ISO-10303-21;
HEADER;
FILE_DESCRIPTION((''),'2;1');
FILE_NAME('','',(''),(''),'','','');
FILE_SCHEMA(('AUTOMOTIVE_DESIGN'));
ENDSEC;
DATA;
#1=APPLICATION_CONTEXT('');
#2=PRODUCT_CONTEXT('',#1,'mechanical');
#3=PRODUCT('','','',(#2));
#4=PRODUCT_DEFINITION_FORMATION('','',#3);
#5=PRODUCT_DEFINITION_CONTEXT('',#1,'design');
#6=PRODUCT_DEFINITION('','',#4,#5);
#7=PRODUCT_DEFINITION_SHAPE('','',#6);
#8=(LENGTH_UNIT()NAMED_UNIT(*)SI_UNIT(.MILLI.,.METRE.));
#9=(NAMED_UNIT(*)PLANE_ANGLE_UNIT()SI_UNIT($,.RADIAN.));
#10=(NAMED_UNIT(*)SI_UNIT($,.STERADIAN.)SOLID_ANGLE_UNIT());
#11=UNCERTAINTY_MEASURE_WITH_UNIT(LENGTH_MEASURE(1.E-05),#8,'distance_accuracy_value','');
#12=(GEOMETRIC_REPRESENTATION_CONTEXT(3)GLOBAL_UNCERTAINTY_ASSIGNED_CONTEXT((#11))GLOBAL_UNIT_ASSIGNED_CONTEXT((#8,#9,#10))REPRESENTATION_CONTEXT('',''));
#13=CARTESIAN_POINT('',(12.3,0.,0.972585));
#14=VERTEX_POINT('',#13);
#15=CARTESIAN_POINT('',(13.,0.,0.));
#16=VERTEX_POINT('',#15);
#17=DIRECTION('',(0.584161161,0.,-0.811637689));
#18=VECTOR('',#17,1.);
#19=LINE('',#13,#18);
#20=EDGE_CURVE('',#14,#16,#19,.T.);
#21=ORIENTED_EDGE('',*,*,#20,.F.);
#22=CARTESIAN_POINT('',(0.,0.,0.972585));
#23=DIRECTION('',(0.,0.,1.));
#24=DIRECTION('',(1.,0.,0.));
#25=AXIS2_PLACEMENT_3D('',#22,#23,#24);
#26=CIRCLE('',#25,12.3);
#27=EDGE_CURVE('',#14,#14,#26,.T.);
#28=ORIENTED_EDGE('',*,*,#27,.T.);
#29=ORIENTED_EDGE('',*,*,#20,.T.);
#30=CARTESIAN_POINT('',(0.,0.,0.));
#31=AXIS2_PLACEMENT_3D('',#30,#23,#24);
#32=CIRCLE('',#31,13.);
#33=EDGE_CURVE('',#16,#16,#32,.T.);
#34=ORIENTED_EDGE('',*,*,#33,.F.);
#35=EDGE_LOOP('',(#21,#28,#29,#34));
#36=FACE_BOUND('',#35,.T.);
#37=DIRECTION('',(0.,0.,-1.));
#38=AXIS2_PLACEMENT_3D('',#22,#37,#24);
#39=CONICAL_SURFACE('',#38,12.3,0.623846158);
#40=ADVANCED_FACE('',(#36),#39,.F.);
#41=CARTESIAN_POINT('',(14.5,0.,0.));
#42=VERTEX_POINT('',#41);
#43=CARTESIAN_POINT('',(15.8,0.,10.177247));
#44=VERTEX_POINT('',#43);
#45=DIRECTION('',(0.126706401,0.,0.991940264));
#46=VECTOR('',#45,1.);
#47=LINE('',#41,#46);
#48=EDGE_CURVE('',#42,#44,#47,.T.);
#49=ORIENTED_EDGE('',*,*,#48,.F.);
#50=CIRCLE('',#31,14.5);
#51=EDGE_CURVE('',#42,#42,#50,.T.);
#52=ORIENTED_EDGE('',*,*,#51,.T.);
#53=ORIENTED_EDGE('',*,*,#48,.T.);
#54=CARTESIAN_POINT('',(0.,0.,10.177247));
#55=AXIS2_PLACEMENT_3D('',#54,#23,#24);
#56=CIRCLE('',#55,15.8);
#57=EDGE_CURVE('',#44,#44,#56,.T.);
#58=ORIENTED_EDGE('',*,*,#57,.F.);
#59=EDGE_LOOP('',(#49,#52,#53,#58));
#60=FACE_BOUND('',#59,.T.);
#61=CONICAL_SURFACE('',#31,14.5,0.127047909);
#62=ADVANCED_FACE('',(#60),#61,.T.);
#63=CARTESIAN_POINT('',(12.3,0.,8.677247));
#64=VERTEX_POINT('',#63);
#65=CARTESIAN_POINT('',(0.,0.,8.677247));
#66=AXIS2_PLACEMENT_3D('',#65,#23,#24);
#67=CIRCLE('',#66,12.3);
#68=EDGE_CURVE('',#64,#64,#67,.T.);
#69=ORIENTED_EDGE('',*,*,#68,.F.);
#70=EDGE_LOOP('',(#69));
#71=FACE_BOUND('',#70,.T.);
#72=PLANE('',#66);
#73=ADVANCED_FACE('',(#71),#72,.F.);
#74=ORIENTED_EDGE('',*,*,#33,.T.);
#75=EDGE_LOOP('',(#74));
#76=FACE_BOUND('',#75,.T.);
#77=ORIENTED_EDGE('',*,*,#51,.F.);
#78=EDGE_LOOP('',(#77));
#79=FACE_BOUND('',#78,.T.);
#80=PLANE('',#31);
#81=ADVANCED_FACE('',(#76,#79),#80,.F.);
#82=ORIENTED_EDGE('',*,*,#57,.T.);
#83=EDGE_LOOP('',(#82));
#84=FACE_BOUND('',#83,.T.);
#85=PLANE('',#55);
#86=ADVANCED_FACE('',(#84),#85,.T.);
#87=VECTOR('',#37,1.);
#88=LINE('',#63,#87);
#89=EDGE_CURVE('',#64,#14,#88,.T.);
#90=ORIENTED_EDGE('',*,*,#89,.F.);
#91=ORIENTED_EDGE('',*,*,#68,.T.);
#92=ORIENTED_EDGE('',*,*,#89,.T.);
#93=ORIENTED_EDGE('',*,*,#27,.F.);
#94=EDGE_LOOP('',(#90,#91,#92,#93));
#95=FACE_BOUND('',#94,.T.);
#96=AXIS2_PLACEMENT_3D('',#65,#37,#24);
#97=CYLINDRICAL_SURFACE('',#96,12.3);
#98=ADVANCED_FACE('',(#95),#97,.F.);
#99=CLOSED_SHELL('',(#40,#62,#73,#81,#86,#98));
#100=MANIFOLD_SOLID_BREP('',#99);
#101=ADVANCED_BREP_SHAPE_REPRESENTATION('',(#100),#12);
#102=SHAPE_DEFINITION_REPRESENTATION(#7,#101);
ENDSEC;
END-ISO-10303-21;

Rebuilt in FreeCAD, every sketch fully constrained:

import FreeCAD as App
import Part
import Sketcher

V = App.Vector

doc = App.newDocument("Part")
body = doc.addObject("PartDesign::Body", "Body")

# Sketch on XZ plane
sketch1 = body.newObject("Sketcher::SketchObject", "Sketch")
sketch1.AttachmentSupport = (doc.getObject("XZ_Plane"), [""])
sketch1.MapMode = "FlatFace"
sketch1.addGeometry(Part.LineSegment(V(12.3, 1, 0), V(13, 0, 0)), False)
sketch1.addGeometry(Part.LineSegment(V(13, 0, 0), V(14.5, 0, 0)), False)
sketch1.addGeometry(Part.LineSegment(V(14.5, 0, 0), V(15.8, 10.2, 0)), False)
sketch1.addGeometry(Part.LineSegment(V(15.8, 10.2, 0), V(0, 10.2, 0)), False)
sketch1.addGeometry(Part.LineSegment(V(0, 10.2, 0), V(0, 8.7, 0)), False)
sketch1.addGeometry(Part.LineSegment(V(0, 8.7, 0), V(12.3, 8.7, 0)), False)
sketch1.addGeometry(Part.LineSegment(V(12.3, 8.7, 0), V(12.3, 1, 0)), False)
sketch1.addConstraint(Sketcher.Constraint("Coincident", 0, 2, 1, 1))
sketch1.addConstraint(Sketcher.Constraint("Coincident", 1, 2, 2, 1))
sketch1.addConstraint(Sketcher.Constraint("Coincident", 2, 2, 3, 1))
sketch1.addConstraint(Sketcher.Constraint("Coincident", 3, 2, 4, 1))
sketch1.addConstraint(Sketcher.Constraint("Coincident", 4, 2, 5, 1))
sketch1.addConstraint(Sketcher.Constraint("Coincident", 5, 2, 6, 1))
sketch1.addConstraint(Sketcher.Constraint("Coincident", 6, 2, 0, 1))
sketch1.addConstraint(Sketcher.Constraint("Horizontal", 1))
sketch1.addConstraint(Sketcher.Constraint("Horizontal", 3))
sketch1.addConstraint(Sketcher.Constraint("Vertical", 4))
sketch1.addConstraint(Sketcher.Constraint("Horizontal", 5))
sketch1.addConstraint(Sketcher.Constraint("Vertical", 6))
sketch1.addConstraint(Sketcher.Constraint("PointOnObject", 0, 2, -1))
sketch1.addConstraint(Sketcher.Constraint("PointOnObject", 3, 2, -2))
sketch1.addConstraint(Sketcher.Constraint("Equal", 1, 4))
sketch1.addConstraint(Sketcher.Constraint("DistanceX", 1, 1, 1, 2, 1.5))
sketch1.addConstraint(Sketcher.Constraint("DistanceX", 3, 2, 3, 1, 15.8))
sketch1.addConstraint(Sketcher.Constraint("DistanceX", 5, 1, 5, 2, 12.3))
sketch1.addConstraint(Sketcher.Constraint("DistanceX", -1, 1, 0, 2, 13.0))
sketch1.addConstraint(Sketcher.Constraint("Distance", 0, 1.198299))
sketch1.addConstraint(Sketcher.Constraint("DistanceY", 6, 2, 6, 1, 7.704662))
revolution = body.newObject("PartDesign::Revolution", "Revolution")
revolution.Profile = sketch1
revolution.ReferenceAxis = (sketch1, ["V_Axis"])
revolution.Angle = 360

doc.recompute()
